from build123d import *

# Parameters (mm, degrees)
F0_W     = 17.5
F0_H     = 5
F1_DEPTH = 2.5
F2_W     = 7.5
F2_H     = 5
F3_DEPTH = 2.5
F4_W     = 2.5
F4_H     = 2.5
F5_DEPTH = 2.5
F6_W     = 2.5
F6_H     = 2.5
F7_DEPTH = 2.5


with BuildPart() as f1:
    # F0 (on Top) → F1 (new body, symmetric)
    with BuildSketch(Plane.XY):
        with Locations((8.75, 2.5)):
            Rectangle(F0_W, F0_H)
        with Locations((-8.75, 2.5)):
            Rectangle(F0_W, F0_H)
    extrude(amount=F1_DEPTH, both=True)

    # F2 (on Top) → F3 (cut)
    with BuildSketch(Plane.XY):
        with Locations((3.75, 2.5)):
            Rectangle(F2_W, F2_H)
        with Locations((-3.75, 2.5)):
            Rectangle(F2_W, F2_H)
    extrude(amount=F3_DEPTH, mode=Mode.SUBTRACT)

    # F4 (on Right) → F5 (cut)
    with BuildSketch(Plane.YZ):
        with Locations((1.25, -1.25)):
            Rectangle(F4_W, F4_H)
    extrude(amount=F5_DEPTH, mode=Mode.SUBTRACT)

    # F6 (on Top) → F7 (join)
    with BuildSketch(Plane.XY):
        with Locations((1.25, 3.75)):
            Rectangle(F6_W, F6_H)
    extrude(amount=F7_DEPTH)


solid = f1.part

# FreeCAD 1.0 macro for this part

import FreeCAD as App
import Part
import Sketcher
Q = App.Units.Quantity


def add_polygon(sketch, points):
    """Adds a closed chain of lines whose ends are joined by coincident constraints."""
    first, n = sketch.GeometryCount, len(points)
    for a, b in zip(points, points[1:] + points[:1]):
        sketch.addGeometry(Part.LineSegment(App.Vector(*a, 0), App.Vector(*b, 0)), False)
    for i in range(n):
        sketch.addConstraint(Sketcher.Constraint("Coincident", first + i, 2, first + (i + 1) % n, 1))

doc = App.newDocument("Part")
body = doc.addObject("PartDesign::Body", "Body")

# Sketch on XY plane
sketch1 = doc.addObject("Sketcher::SketchObject", "Sketch")
body.addObject(sketch1)
sketch1.AttachmentSupport = (doc.XY_Plane, [""])
sketch1.MapMode = "FlatFace"
add_polygon(sketch1, [(18, 0), (18, 5), (-18, 5), (-18, 0)])  # lines 0-3
sketch1.addConstraint([
    Sketcher.Constraint("Vertical", 0),
    Sketcher.Constraint("Horizontal", 1),
    Sketcher.Constraint("Vertical", 2),
    Sketcher.Constraint("Horizontal", 3),
    Sketcher.Constraint("Symmetric", 2, 2, 3, 2, -1, 1),
    Sketcher.Constraint("DistanceX", 1, 2, 1, 1, Q("35 mm")),
    Sketcher.Constraint("DistanceY", 0, 1, 0, 2, Q("5 mm")),
])
pad1 = doc.addObject("PartDesign::Pad", "Pad")
body.addObject(pad1)
pad1.Profile = sketch1
pad1.Length = 5
pad1.Midplane = True

# Sketch on XY plane
sketch2 = doc.addObject("Sketcher::SketchObject", "Sketch001")
body.addObject(sketch2)
sketch2.AttachmentSupport = (doc.XY_Plane, [""])
sketch2.MapMode = "FlatFace"
add_polygon(sketch2, [(8, 0), (8, 5), (-8, 5), (-8, 0)])  # lines 0-3
sketch2.addConstraint([
    Sketcher.Constraint("Vertical", 0),
    Sketcher.Constraint("Horizontal", 1),
    Sketcher.Constraint("Vertical", 2),
    Sketcher.Constraint("Horizontal", 3),
    Sketcher.Constraint("Symmetric", 2, 2, 3, 2, -1, 1),
    Sketcher.Constraint("DistanceX", 1, 2, 1, 1, Q("15 mm")),
    Sketcher.Constraint("DistanceY", 0, 1, 0, 2, Q("5 mm")),
])
pocket1 = doc.addObject("PartDesign::Pocket", "Pocket")
body.addObject(pocket1)
pocket1.Profile = sketch2
pocket1.Length = 2.5
pocket1.Reversed = True

# Sketch on YZ plane
sketch3 = doc.addObject("Sketcher::SketchObject", "Sketch002")
body.addObject(sketch3)
sketch3.AttachmentSupport = (doc.YZ_Plane, [""])
sketch3.MapMode = "FlatFace"
add_polygon(sketch3, [(0, 0), (0, -2.5), (2.5, -2.5), (2.5, 0)])  # lines 0-3
sketch3.addConstraint([
    Sketcher.Constraint("Vertical", 0),
    Sketcher.Constraint("Horizontal", 1),
    Sketcher.Constraint("Vertical", 2),
    Sketcher.Constraint("Horizontal", 3),
    Sketcher.Constraint("Coincident", 3, 2, -1, 1),
    Sketcher.Constraint("Equal", 3, 0),
    Sketcher.Constraint("DistanceX", 1, 1, 1, 2, Q("2.5 mm")),
])
pocket2 = doc.addObject("PartDesign::Pocket", "Pocket001")
body.addObject(pocket2)
pocket2.Profile = sketch3
pocket2.Length = 2.5
pocket2.Reversed = True

# Sketch on XY plane
sketch4 = doc.addObject("Sketcher::SketchObject", "Sketch003")
body.addObject(sketch4)
sketch4.AttachmentSupport = (doc.XY_Plane, [""])
sketch4.MapMode = "FlatFace"
add_polygon(sketch4, [(0, 5), (0, 2.5), (2.5, 2.5), (2.5, 5)])  # lines 0-3
sketch4.addConstraint([
    Sketcher.Constraint("Vertical", 0),
    Sketcher.Constraint("Horizontal", 1),
    Sketcher.Constraint("Vertical", 2),
    Sketcher.Constraint("Horizontal", 3),
    Sketcher.Constraint("PointOnObject", 0, 2, -2),
    Sketcher.Constraint("Equal", 3, 0),
    Sketcher.Constraint("DistanceX", 1, 1, 1, 2, Q("2.5 mm")),
    Sketcher.Constraint("DistanceY", -1, 1, 2, 2, Q("5 mm")),
])
pad2 = doc.addObject("PartDesign::Pad", "Pad001")
body.addObject(pad2)
pad2.Profile = sketch4
pad2.Length = 2.5

doc.recompute()
